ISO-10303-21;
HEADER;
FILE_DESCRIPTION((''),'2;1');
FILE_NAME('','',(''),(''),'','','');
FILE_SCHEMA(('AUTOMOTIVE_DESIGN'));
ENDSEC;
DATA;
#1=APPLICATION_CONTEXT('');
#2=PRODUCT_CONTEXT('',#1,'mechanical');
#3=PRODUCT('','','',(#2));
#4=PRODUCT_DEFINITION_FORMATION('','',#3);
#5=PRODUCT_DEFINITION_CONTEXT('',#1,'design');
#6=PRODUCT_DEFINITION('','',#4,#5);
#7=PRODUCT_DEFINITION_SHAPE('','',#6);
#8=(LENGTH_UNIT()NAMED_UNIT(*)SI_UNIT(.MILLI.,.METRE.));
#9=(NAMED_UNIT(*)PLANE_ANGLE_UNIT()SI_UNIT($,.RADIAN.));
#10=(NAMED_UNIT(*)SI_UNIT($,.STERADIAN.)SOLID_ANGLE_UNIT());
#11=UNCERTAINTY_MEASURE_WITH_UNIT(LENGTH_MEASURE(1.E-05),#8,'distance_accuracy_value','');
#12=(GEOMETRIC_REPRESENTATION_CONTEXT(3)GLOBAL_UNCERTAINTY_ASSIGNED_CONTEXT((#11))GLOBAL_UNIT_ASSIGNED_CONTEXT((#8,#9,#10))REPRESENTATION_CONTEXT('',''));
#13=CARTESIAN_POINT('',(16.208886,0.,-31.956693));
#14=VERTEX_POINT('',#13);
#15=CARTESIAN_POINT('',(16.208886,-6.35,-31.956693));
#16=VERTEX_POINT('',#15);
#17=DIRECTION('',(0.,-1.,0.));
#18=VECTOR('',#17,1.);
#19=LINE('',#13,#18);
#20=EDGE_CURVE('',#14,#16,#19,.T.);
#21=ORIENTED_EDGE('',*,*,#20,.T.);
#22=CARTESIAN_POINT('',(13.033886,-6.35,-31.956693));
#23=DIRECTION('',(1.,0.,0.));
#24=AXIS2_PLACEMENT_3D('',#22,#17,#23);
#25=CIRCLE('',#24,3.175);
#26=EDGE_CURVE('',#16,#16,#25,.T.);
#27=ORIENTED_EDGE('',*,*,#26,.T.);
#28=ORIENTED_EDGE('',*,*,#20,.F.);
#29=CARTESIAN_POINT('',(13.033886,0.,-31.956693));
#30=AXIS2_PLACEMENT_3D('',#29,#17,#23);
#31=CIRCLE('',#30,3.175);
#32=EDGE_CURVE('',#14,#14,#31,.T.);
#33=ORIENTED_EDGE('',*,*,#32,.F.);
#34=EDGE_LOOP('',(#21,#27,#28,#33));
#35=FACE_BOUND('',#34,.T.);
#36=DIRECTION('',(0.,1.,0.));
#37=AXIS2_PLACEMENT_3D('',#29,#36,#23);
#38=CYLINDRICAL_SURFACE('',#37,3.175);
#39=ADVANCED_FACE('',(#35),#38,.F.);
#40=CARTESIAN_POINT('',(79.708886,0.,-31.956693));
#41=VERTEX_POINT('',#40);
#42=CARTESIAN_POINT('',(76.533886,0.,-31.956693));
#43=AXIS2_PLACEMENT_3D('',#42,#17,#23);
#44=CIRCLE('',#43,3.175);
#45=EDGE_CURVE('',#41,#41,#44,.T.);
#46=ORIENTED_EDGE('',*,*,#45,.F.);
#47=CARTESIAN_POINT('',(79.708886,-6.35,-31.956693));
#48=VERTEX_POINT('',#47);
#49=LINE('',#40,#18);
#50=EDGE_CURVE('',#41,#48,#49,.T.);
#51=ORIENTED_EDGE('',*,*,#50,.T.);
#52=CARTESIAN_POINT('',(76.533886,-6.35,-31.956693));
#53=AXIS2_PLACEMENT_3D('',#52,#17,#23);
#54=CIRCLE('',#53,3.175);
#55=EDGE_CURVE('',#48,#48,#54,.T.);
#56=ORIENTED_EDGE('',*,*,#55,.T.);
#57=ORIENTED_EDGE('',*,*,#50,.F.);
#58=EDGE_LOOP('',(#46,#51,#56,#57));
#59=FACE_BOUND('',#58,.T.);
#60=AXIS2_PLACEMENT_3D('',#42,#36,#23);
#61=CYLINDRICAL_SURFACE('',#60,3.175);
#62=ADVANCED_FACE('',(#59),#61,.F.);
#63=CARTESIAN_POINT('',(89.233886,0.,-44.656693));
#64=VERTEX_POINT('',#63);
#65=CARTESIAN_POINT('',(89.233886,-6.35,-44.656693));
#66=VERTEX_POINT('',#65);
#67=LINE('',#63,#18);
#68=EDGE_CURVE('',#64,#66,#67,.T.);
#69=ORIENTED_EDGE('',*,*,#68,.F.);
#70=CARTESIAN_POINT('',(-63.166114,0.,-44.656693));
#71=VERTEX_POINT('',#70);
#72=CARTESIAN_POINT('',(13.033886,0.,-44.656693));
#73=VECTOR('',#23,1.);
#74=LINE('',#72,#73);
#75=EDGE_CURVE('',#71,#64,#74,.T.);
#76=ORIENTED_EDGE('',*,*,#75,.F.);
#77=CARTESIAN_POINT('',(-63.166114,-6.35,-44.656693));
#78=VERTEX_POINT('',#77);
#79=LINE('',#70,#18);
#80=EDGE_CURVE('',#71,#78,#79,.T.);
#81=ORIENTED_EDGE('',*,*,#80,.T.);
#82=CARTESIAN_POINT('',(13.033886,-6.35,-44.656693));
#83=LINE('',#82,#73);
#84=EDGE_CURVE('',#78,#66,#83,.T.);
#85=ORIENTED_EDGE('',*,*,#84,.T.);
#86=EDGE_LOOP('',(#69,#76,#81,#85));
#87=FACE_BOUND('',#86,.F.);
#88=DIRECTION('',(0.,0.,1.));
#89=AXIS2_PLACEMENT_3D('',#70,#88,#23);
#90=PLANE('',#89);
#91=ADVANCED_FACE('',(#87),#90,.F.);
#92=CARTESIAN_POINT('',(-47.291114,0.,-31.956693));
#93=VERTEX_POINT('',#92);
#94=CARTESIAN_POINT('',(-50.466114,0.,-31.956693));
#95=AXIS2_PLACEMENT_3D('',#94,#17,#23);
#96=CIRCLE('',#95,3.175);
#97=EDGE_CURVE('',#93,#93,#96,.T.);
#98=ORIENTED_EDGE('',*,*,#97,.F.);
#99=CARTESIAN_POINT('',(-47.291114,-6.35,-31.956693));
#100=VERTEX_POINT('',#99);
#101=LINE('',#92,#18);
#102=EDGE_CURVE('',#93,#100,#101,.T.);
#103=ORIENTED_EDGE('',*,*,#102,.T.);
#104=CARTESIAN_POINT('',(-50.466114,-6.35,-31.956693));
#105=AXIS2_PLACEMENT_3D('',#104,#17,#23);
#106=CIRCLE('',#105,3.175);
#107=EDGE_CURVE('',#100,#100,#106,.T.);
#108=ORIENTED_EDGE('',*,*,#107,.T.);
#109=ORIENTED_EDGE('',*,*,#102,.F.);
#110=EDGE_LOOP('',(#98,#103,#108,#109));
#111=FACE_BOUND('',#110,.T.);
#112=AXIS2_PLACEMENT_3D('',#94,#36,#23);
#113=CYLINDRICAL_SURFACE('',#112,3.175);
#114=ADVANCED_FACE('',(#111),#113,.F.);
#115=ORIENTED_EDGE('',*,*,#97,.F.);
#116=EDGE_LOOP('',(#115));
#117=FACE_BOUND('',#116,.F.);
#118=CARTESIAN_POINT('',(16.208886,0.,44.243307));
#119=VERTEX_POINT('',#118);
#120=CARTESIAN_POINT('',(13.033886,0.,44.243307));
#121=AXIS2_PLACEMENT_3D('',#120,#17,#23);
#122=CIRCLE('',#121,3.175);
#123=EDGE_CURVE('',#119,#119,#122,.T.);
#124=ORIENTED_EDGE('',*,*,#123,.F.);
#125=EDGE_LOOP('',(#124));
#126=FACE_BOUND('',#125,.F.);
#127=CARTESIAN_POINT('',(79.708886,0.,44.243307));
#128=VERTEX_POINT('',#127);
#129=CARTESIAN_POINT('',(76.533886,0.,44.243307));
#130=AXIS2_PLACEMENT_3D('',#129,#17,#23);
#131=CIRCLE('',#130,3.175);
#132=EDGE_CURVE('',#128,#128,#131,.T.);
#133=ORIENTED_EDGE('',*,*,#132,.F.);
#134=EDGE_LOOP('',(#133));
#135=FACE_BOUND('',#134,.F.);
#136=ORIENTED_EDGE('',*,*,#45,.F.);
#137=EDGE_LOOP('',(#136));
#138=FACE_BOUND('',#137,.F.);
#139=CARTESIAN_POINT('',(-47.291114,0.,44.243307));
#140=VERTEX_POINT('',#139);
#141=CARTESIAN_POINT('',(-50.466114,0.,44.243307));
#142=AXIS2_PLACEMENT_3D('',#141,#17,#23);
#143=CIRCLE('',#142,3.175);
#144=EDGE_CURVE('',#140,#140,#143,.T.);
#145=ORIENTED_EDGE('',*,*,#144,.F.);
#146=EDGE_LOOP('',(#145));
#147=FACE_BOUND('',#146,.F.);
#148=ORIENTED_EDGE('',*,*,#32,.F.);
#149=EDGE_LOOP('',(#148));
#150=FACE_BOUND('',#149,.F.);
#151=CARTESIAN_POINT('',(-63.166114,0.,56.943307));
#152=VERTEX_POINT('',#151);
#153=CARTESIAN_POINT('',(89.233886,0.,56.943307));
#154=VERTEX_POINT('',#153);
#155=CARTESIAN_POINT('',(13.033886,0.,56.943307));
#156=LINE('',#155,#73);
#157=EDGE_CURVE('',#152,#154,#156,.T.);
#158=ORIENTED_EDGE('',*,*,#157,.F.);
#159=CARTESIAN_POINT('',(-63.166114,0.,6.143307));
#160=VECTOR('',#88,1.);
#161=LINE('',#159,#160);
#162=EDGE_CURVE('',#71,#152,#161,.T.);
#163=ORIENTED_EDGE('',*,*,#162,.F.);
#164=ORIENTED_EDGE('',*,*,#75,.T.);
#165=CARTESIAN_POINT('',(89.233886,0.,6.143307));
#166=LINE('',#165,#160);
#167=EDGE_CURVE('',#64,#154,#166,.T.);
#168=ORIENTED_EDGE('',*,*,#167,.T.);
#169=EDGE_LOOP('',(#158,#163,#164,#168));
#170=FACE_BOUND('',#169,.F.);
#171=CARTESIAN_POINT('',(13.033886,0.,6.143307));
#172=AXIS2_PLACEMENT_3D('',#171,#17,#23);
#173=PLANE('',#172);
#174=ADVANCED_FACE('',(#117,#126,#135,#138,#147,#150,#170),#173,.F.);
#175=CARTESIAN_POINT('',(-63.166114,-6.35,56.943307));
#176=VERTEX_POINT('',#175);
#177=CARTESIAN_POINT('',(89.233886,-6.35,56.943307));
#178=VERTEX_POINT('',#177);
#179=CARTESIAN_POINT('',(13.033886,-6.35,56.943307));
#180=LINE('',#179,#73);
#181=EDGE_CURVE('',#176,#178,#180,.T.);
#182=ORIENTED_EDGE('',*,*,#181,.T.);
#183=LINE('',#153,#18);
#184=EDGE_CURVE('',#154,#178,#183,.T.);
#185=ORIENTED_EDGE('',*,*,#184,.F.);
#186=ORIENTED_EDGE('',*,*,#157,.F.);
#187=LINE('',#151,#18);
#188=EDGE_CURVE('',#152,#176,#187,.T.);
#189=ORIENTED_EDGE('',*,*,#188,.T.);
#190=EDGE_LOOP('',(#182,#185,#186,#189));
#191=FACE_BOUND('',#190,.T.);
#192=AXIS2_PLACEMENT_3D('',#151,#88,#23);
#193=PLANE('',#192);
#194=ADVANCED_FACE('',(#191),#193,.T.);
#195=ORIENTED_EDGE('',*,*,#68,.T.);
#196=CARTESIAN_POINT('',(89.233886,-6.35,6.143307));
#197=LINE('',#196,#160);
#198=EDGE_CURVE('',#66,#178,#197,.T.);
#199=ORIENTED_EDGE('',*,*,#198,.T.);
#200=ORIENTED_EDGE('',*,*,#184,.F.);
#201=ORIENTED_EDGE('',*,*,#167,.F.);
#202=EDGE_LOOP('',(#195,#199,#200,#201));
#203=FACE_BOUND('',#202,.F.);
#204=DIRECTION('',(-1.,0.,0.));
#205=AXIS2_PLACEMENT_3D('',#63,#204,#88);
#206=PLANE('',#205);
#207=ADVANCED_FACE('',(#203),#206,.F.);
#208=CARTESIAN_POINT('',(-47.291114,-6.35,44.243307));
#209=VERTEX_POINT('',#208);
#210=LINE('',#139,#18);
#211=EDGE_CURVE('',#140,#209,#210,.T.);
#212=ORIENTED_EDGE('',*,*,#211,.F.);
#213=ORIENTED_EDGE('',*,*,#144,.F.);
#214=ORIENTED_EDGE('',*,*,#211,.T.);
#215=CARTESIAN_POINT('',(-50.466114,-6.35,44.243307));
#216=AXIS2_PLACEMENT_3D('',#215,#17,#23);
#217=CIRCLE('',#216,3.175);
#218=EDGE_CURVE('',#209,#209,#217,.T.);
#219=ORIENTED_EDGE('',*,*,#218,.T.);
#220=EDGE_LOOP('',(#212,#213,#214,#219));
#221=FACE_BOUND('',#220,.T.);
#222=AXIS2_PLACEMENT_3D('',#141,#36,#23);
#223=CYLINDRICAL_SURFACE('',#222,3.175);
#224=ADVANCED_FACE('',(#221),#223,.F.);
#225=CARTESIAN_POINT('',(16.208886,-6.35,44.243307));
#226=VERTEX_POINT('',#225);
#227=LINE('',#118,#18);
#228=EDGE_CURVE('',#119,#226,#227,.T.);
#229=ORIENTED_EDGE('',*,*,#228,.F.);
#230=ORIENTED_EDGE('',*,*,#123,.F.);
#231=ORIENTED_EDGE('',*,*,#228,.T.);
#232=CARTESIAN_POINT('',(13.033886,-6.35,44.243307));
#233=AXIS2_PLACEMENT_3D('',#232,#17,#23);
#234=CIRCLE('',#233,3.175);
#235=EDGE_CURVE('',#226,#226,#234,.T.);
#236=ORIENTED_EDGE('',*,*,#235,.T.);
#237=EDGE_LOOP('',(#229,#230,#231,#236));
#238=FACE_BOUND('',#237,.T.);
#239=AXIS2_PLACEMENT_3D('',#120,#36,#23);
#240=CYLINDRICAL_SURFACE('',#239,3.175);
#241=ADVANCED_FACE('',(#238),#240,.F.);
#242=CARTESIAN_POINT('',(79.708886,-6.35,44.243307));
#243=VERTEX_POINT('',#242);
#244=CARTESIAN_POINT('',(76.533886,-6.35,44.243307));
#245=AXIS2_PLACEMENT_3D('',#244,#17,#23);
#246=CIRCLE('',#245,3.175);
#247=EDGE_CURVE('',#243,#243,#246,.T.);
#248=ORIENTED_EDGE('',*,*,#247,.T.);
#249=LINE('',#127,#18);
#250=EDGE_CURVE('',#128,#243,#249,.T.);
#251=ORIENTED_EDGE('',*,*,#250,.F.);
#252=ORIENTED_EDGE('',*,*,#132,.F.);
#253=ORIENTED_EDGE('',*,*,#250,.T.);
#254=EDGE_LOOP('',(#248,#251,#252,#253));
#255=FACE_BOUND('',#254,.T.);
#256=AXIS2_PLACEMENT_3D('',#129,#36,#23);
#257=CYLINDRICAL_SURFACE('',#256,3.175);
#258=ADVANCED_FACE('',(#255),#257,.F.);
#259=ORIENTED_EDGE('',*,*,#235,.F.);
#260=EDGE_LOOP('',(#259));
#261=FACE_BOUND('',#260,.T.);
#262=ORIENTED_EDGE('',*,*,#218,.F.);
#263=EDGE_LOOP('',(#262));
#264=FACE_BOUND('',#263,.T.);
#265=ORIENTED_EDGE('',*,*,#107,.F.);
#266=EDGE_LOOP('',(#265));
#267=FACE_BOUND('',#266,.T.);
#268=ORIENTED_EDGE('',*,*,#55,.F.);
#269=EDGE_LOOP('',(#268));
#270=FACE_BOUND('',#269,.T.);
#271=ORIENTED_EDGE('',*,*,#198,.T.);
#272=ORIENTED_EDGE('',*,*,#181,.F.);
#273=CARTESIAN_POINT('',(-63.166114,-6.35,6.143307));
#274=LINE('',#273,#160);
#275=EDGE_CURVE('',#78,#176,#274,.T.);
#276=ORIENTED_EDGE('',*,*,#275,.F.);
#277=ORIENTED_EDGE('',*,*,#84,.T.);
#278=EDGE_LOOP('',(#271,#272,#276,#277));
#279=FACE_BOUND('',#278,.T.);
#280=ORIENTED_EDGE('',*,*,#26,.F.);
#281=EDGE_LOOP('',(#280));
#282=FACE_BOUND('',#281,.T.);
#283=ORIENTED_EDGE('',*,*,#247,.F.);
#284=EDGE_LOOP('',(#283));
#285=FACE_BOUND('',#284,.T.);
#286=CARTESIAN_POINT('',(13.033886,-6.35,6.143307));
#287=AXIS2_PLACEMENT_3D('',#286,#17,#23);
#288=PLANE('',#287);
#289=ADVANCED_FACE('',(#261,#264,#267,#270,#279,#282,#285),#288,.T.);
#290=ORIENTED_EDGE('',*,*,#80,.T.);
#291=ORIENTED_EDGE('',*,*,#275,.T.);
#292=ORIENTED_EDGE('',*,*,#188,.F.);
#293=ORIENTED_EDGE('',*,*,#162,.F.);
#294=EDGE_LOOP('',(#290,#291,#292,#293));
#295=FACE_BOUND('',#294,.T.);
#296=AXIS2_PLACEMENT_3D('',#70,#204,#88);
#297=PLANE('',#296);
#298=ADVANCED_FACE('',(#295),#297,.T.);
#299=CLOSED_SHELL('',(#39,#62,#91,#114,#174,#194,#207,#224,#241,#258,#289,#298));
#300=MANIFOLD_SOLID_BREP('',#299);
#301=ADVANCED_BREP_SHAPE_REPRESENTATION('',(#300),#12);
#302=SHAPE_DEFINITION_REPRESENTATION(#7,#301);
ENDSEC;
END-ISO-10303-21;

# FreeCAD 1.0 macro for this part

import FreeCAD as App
import Part
import Sketcher
Q = App.Units.Quantity


def add_polygon(sketch, points):
    """Adds a closed chain of lines whose ends are joined by coincident constraints."""
    first, n = sketch.GeometryCount, len(points)
    for a, b in zip(points, points[1:] + points[:1]):
        sketch.addGeometry(Part.LineSegment(App.Vector(*a, 0), App.Vector(*b, 0)), False)
    for i in range(n):
        sketch.addConstraint(Sketcher.Constraint("Coincident", first + i, 2, first + (i + 1) % n, 1))

doc = App.newDocument("Part")
body = doc.addObject("PartDesign::Body", "Body")

# Sketch on XZ plane
sketch1 = body.newObject("Sketcher::SketchObject", "Sketch")
sketch1.AttachmentSupport = (doc.getObject("XZ_Plane"), [""])
sketch1.MapMode = "FlatFace"
add_polygon(sketch1, [(-63.166114, 56.943307), (-63.166114, -44.656693), (89.233886, -44.656693), (89.233886, 56.943307)])  # lines 0-3
sketch1.addGeometry(Part.Circle(App.Vector(-50.466114, -31.956693, 0), App.Vector(0, 0, 1), 3.175), False)  # 4
sketch1.addGeometry(Part.Circle(App.Vector(13.033886, -31.956693, 0), App.Vector(0, 0, 1), 3.175), False)  # 5
sketch1.addGeometry(Part.Circle(App.Vector(76.533886, -31.956693, 0), App.Vector(0, 0, 1), 3.175), False)  # 6
sketch1.addGeometry(Part.Circle(App.Vector(-50.466114, 44.243307, 0), App.Vector(0, 0, 1), 3.175), False)  # 7
sketch1.addGeometry(Part.Circle(App.Vector(13.033886, 44.243307, 0), App.Vector(0, 0, 1), 3.175), False)  # 8
sketch1.addGeometry(Part.Circle(App.Vector(76.533886, 44.243307, 0), App.Vector(0, 0, 1), 3.175), False)  # 9
sketch1.addConstraint([
    Sketcher.Constraint("Vertical", 0),
    Sketcher.Constraint("Horizontal", 1),
    Sketcher.Constraint("Vertical", 2),
    Sketcher.Constraint("Horizontal", 3),
    Sketcher.Constraint("Equal", 4, 5),
    Sketcher.Constraint("Equal", 5, 6),
    Sketcher.Constraint("Equal", 6, 7),
    Sketcher.Constraint("Equal", 7, 8),
    Sketcher.Constraint("Equal", 8, 9),
    Sketcher.Constraint("Horizontal", 4, 3, 5, 3),
    Sketcher.Constraint("Horizontal", 5, 3, 6, 3),
    Sketcher.Constraint("Horizontal", 7, 3, 8, 3),
    Sketcher.Constraint("Horizontal", 8, 3, 9, 3),
    Sketcher.Constraint("Vertical", 4, 3, 7, 3),
    Sketcher.Constraint("Vertical", 5, 3, 8, 3),
    Sketcher.Constraint("Vertical", 6, 3, 9, 3),
    Sketcher.Constraint("Diameter", 4, Q("0.25 in")),
    Sketcher.Constraint("DistanceX", 1, 1, 1, 2, Q("6 in")),
    Sketcher.Constraint("DistanceY", 0, 2, 0, 1, Q("4 in")),
    Sketcher.Constraint("DistanceX", 4, 3, 6, 3, Q("5 in")),
    Sketcher.Constraint("DistanceY", 4, 3, 7, 3, Q("3 in")),
    Sketcher.Constraint("DistanceX", 0, 2, 5, 3, Q("3 in")),
    Sketcher.Constraint("DistanceX", 4, 3, 5, 3, Q("2.5 in")),
    Sketcher.Constraint("DistanceY", 0, 2, 4, 3, Q("0.5 in")),
    Sketcher.Constraint("DistanceX", 4, 3, -1, 1, 50.466114),
    Sketcher.Constraint("DistanceY", 4, 3, -1, 1, 31.956693),
])
pad1 = body.newObject("PartDesign::Pad", "Pad")
pad1.Profile = sketch1
pad1.Length = Q("0.25 in")

doc.recompute()
